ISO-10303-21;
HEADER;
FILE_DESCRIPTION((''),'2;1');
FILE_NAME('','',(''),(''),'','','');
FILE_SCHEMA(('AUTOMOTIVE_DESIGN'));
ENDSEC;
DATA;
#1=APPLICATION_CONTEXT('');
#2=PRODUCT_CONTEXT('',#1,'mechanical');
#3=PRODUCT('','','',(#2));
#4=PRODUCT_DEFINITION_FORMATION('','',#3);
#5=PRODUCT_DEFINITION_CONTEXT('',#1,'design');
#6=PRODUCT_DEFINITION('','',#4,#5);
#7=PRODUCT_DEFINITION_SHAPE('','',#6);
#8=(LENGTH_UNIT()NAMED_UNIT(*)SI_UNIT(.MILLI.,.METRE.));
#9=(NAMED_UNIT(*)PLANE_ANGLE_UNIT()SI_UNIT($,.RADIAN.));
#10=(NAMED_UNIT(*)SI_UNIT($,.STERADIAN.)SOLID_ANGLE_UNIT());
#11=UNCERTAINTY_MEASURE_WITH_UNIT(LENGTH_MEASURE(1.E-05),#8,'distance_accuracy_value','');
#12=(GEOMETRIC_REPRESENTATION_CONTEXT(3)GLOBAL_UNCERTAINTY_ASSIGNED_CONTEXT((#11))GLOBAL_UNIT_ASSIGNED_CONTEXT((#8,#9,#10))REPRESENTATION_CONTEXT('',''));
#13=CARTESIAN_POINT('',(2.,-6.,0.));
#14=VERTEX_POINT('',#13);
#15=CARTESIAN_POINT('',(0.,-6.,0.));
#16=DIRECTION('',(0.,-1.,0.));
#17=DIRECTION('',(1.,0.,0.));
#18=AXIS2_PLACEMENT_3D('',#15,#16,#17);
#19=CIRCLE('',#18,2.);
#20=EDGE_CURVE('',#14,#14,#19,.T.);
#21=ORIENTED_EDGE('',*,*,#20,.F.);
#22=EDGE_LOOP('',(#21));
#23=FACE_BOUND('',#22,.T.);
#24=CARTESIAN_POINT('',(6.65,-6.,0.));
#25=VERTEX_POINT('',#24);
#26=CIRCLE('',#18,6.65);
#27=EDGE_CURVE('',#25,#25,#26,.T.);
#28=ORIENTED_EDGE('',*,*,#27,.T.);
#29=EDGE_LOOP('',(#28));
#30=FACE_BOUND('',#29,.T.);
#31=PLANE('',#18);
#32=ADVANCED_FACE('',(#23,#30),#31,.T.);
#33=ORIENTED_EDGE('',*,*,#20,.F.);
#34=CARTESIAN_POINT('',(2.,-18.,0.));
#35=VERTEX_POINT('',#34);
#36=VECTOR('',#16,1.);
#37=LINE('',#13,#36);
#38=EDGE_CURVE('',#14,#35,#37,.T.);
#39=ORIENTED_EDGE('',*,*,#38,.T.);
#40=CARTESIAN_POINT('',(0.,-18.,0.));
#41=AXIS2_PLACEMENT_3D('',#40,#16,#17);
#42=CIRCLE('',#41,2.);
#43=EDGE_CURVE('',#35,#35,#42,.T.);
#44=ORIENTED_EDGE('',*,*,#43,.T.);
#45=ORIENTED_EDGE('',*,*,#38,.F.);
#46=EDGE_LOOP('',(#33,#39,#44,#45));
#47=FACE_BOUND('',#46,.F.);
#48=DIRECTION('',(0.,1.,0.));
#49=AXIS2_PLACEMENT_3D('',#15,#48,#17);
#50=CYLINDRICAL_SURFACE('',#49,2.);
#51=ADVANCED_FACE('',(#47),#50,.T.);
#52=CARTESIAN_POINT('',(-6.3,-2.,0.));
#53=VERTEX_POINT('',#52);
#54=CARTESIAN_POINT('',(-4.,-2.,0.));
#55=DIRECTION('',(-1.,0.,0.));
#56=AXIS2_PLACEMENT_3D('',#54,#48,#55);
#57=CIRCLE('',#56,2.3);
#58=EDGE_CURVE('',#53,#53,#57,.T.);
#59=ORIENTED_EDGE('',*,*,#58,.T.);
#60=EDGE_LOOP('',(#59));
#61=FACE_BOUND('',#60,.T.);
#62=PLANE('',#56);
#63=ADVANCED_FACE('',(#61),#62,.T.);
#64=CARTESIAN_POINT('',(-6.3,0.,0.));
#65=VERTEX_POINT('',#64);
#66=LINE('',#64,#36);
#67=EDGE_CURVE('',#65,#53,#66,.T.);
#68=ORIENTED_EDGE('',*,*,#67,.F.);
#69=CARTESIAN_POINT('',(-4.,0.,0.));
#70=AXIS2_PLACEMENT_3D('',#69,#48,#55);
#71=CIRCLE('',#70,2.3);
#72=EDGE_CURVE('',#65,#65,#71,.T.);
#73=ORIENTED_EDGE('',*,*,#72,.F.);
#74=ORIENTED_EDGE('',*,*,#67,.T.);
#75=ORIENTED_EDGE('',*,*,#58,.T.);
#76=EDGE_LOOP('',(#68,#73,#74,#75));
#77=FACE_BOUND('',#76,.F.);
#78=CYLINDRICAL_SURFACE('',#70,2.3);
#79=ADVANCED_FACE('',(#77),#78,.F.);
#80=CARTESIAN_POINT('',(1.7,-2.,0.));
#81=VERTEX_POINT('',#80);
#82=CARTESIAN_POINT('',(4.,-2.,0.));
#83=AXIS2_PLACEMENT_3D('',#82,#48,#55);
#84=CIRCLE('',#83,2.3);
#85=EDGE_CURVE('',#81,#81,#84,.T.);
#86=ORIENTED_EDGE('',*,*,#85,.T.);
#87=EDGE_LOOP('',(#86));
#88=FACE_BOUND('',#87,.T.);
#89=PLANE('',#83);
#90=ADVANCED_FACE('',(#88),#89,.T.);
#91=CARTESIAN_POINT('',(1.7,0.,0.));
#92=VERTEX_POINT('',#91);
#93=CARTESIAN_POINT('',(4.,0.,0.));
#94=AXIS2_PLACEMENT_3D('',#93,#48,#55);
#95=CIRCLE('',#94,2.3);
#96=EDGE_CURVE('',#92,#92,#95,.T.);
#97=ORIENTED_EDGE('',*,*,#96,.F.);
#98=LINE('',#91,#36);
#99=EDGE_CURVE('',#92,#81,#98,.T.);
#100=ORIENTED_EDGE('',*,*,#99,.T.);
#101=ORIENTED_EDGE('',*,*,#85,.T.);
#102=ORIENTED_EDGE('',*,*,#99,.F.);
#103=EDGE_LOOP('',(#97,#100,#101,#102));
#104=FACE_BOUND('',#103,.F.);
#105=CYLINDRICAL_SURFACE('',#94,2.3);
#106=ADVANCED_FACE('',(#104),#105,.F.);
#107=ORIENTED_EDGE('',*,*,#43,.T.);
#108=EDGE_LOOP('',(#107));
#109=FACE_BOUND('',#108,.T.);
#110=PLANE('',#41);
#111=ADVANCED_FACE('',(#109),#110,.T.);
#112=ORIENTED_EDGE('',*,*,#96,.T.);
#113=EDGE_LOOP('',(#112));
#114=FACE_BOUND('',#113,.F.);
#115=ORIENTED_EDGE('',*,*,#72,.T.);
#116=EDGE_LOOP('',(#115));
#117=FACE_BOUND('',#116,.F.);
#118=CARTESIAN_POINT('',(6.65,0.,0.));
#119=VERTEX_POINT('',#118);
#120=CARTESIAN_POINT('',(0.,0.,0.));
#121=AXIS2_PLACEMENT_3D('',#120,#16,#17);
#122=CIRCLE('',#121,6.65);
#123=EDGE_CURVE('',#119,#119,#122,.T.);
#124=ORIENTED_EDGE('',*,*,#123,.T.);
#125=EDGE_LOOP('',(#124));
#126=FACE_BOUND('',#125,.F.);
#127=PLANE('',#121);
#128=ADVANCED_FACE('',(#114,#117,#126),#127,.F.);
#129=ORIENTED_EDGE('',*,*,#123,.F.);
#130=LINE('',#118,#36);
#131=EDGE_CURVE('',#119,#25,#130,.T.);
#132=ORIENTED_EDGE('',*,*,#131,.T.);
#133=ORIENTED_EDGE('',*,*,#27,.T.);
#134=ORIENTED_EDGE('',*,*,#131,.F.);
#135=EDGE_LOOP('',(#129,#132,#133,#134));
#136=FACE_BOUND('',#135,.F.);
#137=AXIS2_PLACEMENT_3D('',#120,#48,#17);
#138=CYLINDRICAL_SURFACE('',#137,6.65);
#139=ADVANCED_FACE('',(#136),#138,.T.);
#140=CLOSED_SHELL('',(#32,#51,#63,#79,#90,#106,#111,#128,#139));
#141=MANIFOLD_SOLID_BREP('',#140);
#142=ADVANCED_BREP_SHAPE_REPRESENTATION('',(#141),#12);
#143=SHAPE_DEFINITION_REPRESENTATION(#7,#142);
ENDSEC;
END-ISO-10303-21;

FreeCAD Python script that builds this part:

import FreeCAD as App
import Part
import Sketcher

doc = App.newDocument("Part")
body = doc.addObject("PartDesign::Body", "Body")

# Sketch on XZ plane
sketch1 = body.newObject("Sketcher::SketchObject", "Sketch")
sketch1.AttachmentSupport = (doc.getObject("XZ_Plane"), [""])
sketch1.MapMode = "FlatFace"
sketch1.addGeometry(Part.Circle(App.Vector(0, 0, 0), App.Vector(0, 0, 1), 6.65), False)
sketch1.addConstraint([
    Sketcher.Constraint("Coincident", 0, 3, -1, 1),
    Sketcher.Constraint("Diameter", 0, 13.3),
])
pad1 = body.newObject("PartDesign::Pad", "Pad")
pad1.Profile = sketch1
pad1.Length = 6

# Sketch on XZ plane
sketch2 = body.newObject("Sketcher::SketchObject", "Sketch001")
sketch2.AttachmentSupport = (doc.getObject("XZ_Plane"), [""])
sketch2.MapMode = "FlatFace"
sketch2.AttachmentOffset = App.Placement(App.Vector(0, 0, 6), App.Rotation())
sketch2.addGeometry(Part.Circle(App.Vector(0, 0, 0), App.Vector(0, 0, 1), 2), False)
sketch2.addConstraint([
    Sketcher.Constraint("Coincident", 0, 3, -1, 1),
    Sketcher.Constraint("Diameter", 0, 4.0),
])
pad2 = body.newObject("PartDesign::Pad", "Pad001")
pad2.Profile = sketch2
pad2.Length = 12

# Sketch on XZ plane
sketch3 = body.newObject("Sketcher::SketchObject", "Sketch002")
sketch3.AttachmentSupport = (doc.getObject("XZ_Plane"), [""])
sketch3.MapMode = "FlatFace"
sketch3.addGeometry([
    Part.Circle(App.Vector(4, 0, 0), App.Vector(0, 0, 1), 2.3),
    Part.Circle(App.Vector(-4, 0, 0), App.Vector(0, 0, 1), 2.3),
], False)
sketch3.addConstraint([
    Sketcher.Constraint("Equal", 0, 1),
    Sketcher.Constraint("Symmetric", 0, 3, 1, 3, -1, 1),
    Sketcher.Constraint("PointOnObject", 0, 3, -1),
    Sketcher.Constraint("Diameter", 0, 4.6),
    Sketcher.Constraint("DistanceX", -1, 1, 0, 3, 4.0),
])
pocket1 = body.newObject("PartDesign::Pocket", "Pocket")
pocket1.Profile = sketch3
pocket1.Length = 2
pocket1.Reversed = True

doc.recompute()
